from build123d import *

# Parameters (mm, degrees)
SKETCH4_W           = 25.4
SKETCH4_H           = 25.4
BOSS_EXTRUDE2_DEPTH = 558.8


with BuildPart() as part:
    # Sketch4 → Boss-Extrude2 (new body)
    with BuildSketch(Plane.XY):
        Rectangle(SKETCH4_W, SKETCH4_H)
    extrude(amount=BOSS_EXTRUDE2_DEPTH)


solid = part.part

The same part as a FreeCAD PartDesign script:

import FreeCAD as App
import Part
import Sketcher
Q = App.Units.Quantity


def add_polygon(sketch, points):
    """Adds a closed chain of lines whose ends are joined by coincident constraints."""
    first, n = sketch.GeometryCount, len(points)
    for a, b in zip(points, points[1:] + points[:1]):
        sketch.addGeometry(Part.LineSegment(App.Vector(*a, 0), App.Vector(*b, 0)), False)
    for i in range(n):
        sketch.addConstraint(Sketcher.Constraint("Coincident", first + i, 2, first + (i + 1) % n, 1))

doc = App.newDocument("Part")
body = doc.addObject("PartDesign::Body", "Body")

# Sketch on XY plane
sketch1 = doc.addObject("Sketcher::SketchObject", "Sketch")
body.addObject(sketch1)
sketch1.AttachmentSupport = (doc.XY_Plane, [""])
sketch1.MapMode = "FlatFace"
add_polygon(sketch1, [(-13, 13), (-13, -13), (13, -13), (13, 13)])  # lines 0-3
sketch1.addConstraint([
    Sketcher.Constraint("Vertical", 0),
    Sketcher.Constraint("Horizontal", 1),
    Sketcher.Constraint("Vertical", 2),
    Sketcher.Constraint("Horizontal", 3),
    Sketcher.Constraint("Symmetric", 0, 2, 2, 2, -1, 1),
    Sketcher.Constraint("Equal", 3, 0),
    Sketcher.Constraint("DistanceX", 1, 1, 1, 2, Q("1 in")),
])
pad1 = doc.addObject("PartDesign::Pad", "Pad")
body.addObject(pad1)
pad1.Profile = sketch1
pad1.Length = Q("22 in")

doc.recompute()
